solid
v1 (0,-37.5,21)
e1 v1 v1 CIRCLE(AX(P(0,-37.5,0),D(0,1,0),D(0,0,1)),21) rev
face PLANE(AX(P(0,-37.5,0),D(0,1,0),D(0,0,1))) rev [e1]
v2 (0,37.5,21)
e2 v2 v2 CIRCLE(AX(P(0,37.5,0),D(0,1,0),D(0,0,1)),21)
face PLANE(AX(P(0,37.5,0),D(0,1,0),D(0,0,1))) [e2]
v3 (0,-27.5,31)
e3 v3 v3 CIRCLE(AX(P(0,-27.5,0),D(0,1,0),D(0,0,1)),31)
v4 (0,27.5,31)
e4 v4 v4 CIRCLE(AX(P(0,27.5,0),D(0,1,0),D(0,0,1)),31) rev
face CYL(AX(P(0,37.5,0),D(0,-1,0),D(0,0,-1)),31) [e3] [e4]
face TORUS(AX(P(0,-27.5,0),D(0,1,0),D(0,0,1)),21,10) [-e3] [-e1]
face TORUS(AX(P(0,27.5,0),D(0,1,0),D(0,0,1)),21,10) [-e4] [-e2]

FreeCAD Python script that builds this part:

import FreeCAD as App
import Part
import Sketcher


def edges_at(feature, points):
    """Names of the edges that pass closest to the given points."""
    edges = feature.Shape.Edges
    near = lambda p: min(range(len(edges)), key=lambda i: edges[i].distToShape(Part.Vertex(*p))[0])
    return sorted({f"Edge{near(p) + 1}" for p in points})

doc = App.newDocument("Part")
params = doc.addObject("Spreadsheet::Sheet", "Params")
for row, (alias, value) in enumerate([
    ("sketch1_diameter", "62 mm"),
    ("pad1_length", "75 mm"),
    ("fillet_radius", "10 mm"),
], start=1):
    params.set(f"A{row}", alias)
    params.set(f"B{row}", "=" + value)
    params.setAlias(f"B{row}", alias)

body = doc.addObject("PartDesign::Body", "Body")

sketch1 = doc.addObject("Sketcher::SketchObject", "Sketch")
body.addObject(sketch1)
sketch1.AttachmentSupport = (doc.XZ_Plane, [""])
sketch1.MapMode = "FlatFace"
sketch1.addGeometry(Part.Circle(App.Vector(0, 0, 0), App.Vector(0, 0, 1), 31), False)
sketch1.addConstraint(Sketcher.Constraint("Coincident", 0, 3, -1, 1))
sketch1.addConstraint(Sketcher.Constraint("Diameter", 0, 62.0))
sketch1.setExpression("Constraints[1]", "Params.sketch1_diameter")
pad1 = doc.addObject("PartDesign::Pad", "Pad")
body.addObject(pad1)
pad1.Profile = sketch1
pad1.setExpression("Length", "Params.pad1_length")
pad1.Midplane = True
doc.recompute()

fillet = doc.addObject("PartDesign::Fillet", "Fillet")
body.addObject(fillet)
fillet.Base = (pad1, edges_at(pad1, [(-31, -37.5, 0), (-31, 37.5, 0)]))
fillet.setExpression("Radius", "Params.fillet_radius")

doc.recompute()
